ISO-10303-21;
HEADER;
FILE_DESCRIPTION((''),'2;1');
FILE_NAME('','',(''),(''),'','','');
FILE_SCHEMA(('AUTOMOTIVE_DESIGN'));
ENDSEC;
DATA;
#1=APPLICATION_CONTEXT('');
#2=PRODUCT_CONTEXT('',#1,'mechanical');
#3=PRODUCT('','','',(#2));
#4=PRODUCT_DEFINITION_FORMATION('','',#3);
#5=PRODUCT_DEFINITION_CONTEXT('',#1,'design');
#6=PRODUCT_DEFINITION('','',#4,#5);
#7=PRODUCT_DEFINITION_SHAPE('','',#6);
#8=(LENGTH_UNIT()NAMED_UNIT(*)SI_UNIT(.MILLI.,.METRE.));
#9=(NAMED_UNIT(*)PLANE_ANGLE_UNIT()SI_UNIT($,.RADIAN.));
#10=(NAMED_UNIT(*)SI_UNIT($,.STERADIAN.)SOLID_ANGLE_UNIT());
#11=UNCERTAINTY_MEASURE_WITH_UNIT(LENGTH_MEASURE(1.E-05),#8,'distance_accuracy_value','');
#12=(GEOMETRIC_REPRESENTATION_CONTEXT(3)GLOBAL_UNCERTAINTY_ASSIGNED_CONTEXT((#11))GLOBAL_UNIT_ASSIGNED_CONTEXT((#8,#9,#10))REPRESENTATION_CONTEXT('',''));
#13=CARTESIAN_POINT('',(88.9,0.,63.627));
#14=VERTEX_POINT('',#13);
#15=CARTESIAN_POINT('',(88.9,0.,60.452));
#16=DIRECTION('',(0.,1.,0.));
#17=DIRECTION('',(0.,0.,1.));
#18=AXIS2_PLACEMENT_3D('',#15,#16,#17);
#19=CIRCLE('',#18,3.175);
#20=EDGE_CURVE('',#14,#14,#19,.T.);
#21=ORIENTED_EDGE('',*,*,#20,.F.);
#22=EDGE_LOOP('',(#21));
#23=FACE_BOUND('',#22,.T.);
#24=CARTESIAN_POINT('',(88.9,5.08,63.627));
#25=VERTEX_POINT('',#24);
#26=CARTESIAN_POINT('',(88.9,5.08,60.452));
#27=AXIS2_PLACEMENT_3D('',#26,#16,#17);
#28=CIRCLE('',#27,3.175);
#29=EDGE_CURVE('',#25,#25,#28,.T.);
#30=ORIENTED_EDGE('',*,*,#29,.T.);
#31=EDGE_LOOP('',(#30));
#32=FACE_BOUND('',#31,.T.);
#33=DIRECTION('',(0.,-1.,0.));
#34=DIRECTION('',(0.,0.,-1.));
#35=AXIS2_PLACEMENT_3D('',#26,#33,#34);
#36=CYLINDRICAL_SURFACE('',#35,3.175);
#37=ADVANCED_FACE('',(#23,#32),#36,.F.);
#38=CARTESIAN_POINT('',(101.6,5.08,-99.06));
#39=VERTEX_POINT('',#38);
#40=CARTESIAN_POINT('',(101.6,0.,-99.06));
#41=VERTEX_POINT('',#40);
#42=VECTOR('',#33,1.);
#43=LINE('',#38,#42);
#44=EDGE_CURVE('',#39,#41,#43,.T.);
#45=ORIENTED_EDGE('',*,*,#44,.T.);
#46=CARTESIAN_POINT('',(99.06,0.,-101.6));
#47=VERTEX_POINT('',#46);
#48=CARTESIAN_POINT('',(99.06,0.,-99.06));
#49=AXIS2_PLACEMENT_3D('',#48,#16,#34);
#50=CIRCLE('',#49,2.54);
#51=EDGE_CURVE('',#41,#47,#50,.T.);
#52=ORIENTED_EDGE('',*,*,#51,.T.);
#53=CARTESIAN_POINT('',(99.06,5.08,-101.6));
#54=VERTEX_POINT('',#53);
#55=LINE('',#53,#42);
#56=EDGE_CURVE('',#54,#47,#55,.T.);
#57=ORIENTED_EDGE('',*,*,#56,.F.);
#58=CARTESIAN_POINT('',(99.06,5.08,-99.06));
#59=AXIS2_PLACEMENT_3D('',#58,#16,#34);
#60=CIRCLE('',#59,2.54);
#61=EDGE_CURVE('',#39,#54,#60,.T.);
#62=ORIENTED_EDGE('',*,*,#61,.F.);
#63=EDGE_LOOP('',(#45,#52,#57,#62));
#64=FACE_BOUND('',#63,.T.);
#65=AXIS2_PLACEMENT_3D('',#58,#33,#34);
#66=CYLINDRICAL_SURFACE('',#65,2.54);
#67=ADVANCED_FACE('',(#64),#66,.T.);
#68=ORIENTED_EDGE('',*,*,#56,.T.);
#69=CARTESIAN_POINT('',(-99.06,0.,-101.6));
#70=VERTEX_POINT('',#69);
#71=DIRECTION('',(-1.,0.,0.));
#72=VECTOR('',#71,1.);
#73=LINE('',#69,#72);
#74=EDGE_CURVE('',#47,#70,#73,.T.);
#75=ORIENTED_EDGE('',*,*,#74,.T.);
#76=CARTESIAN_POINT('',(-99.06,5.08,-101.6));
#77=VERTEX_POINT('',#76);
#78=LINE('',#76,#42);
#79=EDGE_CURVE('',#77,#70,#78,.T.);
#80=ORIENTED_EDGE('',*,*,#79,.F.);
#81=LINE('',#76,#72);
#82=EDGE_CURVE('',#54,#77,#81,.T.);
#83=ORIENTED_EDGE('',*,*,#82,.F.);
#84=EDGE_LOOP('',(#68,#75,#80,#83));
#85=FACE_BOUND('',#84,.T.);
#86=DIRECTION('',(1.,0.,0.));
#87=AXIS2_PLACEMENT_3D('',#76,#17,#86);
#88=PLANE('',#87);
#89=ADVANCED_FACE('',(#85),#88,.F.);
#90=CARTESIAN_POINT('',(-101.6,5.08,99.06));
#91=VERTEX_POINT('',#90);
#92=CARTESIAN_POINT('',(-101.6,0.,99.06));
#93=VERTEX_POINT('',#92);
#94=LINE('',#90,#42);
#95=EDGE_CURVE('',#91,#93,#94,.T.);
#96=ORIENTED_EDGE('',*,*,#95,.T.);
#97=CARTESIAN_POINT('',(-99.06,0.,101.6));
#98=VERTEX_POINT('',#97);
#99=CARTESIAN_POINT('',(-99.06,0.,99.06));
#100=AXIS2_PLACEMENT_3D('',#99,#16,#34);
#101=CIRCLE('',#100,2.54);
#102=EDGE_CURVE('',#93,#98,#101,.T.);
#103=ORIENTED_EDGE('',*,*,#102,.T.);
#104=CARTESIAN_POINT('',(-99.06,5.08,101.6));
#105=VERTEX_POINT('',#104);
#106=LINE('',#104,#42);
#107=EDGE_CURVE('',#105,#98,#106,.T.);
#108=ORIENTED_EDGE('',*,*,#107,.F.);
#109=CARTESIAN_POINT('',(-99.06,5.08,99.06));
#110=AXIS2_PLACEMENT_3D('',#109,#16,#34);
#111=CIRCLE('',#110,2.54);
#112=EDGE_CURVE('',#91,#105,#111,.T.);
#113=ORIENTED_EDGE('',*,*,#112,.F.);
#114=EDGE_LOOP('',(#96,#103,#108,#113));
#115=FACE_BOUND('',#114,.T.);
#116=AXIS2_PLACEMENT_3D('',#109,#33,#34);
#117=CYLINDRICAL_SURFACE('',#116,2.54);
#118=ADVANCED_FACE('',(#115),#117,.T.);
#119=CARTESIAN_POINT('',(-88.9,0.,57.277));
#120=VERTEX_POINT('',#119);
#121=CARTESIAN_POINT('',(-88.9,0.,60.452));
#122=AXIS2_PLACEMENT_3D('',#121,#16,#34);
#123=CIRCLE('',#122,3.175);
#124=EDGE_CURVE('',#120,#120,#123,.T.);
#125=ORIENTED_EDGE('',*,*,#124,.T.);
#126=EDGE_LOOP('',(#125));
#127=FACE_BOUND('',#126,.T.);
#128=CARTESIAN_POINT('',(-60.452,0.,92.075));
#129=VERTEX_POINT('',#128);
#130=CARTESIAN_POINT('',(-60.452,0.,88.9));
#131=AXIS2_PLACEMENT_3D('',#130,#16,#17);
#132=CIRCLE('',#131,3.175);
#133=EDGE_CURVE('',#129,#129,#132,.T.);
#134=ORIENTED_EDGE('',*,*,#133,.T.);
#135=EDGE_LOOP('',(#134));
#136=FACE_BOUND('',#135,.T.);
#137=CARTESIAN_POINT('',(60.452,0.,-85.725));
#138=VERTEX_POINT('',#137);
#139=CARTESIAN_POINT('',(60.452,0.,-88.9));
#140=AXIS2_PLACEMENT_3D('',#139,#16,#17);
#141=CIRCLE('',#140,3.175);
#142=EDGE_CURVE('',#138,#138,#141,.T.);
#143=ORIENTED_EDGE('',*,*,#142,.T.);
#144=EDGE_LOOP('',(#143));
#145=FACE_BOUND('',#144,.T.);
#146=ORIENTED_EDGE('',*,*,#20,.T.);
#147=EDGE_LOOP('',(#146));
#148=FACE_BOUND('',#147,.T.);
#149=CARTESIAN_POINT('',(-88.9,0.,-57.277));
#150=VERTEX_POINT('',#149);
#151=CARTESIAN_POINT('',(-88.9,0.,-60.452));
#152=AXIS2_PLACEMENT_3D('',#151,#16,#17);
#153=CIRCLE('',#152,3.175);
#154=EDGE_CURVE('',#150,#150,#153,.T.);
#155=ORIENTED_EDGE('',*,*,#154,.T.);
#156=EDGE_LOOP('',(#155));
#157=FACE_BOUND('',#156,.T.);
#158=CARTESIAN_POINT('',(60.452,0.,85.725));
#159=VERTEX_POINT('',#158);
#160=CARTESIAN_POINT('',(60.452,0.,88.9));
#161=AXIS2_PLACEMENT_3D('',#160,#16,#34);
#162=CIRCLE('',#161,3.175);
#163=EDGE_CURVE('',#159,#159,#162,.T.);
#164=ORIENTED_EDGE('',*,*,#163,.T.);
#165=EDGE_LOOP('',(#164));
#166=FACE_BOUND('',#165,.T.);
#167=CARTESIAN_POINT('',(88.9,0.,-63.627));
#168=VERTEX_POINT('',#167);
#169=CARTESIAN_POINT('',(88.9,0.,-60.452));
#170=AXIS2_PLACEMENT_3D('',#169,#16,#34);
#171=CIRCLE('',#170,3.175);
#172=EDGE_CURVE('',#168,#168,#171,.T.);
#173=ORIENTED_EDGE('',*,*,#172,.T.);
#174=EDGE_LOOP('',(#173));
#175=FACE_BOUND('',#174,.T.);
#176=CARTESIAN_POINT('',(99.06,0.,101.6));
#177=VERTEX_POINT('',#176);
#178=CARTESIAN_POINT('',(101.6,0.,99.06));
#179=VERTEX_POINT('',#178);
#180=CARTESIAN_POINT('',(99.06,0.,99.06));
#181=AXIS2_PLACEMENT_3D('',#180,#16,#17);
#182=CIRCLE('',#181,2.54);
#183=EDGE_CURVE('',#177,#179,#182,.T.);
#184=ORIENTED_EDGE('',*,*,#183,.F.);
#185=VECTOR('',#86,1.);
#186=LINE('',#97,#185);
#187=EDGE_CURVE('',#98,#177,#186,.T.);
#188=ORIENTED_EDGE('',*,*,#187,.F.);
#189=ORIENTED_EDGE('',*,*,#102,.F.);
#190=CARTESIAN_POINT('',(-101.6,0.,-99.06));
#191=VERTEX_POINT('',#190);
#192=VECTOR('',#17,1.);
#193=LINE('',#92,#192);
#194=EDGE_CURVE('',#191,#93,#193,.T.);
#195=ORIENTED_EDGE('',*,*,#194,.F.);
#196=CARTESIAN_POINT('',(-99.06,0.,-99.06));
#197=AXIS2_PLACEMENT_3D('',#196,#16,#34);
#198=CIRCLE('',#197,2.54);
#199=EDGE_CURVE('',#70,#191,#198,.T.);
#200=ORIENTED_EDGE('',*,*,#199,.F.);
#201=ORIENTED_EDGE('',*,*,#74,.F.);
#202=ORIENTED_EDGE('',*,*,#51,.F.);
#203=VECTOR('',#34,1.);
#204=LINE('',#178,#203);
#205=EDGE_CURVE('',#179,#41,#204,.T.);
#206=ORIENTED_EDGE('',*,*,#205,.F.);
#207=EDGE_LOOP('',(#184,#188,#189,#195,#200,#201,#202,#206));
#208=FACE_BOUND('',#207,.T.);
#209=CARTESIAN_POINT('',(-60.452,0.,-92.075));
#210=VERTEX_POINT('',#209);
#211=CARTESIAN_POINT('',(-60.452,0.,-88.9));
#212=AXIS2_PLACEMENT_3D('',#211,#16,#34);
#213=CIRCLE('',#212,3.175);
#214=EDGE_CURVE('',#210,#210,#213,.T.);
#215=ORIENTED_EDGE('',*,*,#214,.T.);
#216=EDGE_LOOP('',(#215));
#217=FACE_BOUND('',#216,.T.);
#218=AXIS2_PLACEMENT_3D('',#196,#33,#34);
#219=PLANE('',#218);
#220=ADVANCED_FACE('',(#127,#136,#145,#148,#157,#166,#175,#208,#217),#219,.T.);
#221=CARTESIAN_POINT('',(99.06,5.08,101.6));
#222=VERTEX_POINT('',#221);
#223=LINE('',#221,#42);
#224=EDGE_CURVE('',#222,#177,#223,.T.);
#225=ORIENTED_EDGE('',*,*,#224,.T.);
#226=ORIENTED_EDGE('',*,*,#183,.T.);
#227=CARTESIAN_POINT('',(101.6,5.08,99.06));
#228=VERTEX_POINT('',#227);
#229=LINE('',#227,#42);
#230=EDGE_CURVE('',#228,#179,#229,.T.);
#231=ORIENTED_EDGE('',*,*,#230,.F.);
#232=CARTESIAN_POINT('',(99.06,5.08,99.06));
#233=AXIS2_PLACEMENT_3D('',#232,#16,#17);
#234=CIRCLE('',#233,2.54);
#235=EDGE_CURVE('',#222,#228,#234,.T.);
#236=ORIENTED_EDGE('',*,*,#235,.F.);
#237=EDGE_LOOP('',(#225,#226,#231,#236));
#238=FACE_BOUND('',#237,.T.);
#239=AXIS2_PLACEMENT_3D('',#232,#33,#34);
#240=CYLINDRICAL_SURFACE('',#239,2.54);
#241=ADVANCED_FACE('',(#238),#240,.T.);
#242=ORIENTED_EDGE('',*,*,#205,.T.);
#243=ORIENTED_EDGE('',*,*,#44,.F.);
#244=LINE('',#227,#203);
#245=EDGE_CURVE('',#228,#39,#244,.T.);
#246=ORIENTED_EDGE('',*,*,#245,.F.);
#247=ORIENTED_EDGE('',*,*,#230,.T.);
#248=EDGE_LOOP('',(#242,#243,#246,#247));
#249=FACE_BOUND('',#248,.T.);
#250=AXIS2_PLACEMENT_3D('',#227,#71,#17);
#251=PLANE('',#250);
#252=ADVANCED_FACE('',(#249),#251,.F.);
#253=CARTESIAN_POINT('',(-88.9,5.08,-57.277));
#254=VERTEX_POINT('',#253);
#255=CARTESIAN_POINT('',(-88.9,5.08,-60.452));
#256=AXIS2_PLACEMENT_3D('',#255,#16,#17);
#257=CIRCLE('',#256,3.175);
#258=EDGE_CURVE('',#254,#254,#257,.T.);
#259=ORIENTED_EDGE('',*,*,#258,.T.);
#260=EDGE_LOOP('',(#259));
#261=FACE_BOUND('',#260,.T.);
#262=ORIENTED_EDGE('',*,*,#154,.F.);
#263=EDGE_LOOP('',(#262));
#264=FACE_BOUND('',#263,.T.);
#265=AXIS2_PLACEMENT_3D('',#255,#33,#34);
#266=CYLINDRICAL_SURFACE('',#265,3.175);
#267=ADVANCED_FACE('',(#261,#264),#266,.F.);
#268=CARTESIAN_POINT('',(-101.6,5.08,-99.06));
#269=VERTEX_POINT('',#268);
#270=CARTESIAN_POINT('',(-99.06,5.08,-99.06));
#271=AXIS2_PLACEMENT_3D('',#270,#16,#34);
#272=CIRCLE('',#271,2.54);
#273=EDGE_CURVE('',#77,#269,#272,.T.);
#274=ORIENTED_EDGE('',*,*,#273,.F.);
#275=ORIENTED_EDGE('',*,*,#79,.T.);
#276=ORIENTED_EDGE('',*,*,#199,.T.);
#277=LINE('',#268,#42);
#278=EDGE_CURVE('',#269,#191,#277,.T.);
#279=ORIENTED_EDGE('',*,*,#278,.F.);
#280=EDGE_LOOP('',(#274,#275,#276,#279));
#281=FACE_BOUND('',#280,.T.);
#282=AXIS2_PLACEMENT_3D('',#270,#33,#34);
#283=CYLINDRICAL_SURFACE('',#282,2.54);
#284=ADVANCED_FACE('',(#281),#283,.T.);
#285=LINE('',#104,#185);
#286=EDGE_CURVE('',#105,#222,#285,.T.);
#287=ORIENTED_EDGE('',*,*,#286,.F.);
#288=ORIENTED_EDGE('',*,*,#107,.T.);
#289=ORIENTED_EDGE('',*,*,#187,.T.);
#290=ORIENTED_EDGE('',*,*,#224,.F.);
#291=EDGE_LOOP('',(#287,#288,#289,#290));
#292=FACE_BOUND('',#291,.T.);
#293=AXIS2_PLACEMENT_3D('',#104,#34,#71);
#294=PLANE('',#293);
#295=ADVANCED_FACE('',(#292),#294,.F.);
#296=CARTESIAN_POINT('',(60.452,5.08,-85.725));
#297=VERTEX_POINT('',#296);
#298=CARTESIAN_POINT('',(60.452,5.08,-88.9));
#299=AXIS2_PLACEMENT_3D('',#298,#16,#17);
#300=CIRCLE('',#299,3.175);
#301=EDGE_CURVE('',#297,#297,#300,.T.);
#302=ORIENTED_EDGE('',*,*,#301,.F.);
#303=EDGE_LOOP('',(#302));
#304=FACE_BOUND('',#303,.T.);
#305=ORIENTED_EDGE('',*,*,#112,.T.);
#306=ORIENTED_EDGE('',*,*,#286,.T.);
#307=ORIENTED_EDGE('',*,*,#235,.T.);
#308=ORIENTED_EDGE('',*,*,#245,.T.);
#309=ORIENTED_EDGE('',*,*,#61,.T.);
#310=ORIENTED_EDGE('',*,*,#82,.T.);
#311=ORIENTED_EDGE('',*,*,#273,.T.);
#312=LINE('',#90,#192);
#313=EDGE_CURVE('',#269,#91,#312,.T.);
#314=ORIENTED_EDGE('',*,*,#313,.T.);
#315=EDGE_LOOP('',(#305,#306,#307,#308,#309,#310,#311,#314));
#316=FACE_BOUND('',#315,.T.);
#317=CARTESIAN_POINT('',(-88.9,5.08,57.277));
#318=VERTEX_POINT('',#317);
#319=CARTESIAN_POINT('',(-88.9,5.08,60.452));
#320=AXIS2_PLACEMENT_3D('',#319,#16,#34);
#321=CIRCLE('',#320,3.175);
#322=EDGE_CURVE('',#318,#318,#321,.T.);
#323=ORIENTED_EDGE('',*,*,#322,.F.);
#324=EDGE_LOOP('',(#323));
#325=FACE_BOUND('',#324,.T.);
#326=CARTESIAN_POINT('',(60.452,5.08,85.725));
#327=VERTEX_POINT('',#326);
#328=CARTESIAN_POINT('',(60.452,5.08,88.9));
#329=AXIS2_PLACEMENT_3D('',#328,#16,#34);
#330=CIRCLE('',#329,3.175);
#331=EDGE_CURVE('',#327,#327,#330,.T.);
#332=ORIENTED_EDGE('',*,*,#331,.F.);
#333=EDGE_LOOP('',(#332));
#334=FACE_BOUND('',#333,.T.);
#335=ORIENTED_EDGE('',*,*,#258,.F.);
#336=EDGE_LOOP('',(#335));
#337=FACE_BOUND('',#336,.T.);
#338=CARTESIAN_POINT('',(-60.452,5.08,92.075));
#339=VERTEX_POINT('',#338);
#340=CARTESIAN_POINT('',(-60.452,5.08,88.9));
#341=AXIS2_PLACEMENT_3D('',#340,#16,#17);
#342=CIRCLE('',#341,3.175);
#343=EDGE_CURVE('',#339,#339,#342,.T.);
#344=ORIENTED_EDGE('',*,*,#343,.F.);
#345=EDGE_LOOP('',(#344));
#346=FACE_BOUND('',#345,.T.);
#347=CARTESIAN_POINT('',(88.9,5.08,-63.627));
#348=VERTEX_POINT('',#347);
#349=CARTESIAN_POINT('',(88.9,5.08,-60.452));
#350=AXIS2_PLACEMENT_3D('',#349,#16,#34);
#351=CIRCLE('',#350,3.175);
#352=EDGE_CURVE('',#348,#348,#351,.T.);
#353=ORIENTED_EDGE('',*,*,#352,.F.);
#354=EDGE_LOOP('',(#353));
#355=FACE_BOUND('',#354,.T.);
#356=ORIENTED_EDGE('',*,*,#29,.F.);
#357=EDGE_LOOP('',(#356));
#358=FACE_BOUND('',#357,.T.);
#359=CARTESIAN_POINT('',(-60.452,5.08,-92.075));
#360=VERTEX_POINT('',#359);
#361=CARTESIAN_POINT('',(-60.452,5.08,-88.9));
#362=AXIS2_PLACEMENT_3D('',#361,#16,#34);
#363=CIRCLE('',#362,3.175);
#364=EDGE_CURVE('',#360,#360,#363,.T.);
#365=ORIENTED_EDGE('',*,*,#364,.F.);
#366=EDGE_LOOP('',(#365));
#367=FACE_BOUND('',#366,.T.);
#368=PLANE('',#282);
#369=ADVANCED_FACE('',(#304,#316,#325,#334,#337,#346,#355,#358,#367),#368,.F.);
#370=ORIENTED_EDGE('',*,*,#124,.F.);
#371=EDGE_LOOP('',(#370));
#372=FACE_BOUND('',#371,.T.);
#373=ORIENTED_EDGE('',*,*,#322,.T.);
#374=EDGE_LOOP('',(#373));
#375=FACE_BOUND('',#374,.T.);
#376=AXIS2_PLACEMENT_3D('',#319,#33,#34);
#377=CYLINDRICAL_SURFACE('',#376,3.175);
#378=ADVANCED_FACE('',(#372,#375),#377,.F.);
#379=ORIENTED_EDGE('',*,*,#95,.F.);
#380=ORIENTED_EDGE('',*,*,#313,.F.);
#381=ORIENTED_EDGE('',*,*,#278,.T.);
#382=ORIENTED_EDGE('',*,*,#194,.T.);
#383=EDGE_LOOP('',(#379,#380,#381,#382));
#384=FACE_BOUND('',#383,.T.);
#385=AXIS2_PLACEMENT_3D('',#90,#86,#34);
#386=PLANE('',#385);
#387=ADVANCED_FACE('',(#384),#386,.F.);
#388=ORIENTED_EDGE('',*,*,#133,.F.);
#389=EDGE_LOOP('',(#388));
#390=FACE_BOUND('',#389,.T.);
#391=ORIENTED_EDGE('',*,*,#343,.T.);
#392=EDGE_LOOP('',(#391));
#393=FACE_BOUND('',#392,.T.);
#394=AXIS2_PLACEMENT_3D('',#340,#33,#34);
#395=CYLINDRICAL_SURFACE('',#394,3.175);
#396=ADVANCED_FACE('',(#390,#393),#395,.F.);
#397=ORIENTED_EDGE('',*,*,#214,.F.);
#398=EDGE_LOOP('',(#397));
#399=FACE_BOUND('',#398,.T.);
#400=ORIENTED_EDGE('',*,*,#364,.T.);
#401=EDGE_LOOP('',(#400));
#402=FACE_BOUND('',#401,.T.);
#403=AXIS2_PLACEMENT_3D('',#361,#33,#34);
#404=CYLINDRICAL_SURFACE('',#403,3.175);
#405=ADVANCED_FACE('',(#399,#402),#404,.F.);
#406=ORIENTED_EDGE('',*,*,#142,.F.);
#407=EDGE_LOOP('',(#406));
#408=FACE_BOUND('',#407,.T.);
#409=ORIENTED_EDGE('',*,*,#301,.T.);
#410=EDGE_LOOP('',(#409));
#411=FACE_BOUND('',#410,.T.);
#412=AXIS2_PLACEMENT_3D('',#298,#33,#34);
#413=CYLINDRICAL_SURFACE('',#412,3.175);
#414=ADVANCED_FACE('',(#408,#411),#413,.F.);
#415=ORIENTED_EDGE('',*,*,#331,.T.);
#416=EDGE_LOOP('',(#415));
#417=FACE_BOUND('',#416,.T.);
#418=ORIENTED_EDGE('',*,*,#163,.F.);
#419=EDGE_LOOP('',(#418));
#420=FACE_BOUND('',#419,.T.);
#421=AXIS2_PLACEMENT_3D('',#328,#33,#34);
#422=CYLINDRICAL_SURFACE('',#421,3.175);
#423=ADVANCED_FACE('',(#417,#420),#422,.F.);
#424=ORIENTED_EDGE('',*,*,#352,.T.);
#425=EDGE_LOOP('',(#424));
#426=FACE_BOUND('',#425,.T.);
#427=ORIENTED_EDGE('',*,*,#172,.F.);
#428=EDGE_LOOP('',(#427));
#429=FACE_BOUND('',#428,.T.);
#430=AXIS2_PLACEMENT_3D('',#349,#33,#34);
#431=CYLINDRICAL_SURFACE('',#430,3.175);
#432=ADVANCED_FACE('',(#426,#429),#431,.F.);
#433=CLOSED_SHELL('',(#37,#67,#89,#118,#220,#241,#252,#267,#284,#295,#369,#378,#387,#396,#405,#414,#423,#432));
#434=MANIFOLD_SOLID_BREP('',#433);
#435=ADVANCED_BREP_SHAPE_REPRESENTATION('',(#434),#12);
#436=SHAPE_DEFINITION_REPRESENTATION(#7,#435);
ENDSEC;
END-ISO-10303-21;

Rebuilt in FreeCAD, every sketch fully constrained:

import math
import FreeCAD as App
import Part
import Sketcher
from FreeCAD import Vector
Q = App.Units.Quantity

doc = App.newDocument("Part")
body = doc.addObject("PartDesign::Body", "Body")

sketch1 = body.newObject("Sketcher::SketchObject", "Sketch")
sketch1.AttachmentSupport = (doc.getObject("XZ_Plane"), [""])
sketch1.MapMode = "FlatFace"
sketch1.addGeometry([
    Part.LineSegment(Vector(-99.06, 101.6, 0), Vector(99.06, 101.6, 0)),
    Part.ArcOfCircle(Part.Circle(Vector(99.06, 99.06, 0), Vector(0, 0, 1), 2.54), math.radians(0), math.radians(90)),
    Part.LineSegment(Vector(101.6, 99.06, 0), Vector(101.6, -99.06, 0)),
    Part.ArcOfCircle(Part.Circle(Vector(99.06, -99.06, 0), Vector(0, 0, 1), 2.54), math.radians(-90), math.radians(0)),
    Part.LineSegment(Vector(99.06, -101.6, 0), Vector(-99.06, -101.6, 0)),
    Part.ArcOfCircle(Part.Circle(Vector(-99.06, -99.06, 0), Vector(0, 0, 1), 2.54), math.radians(-180), math.radians(-90)),
    Part.LineSegment(Vector(-101.6, -99.06, 0), Vector(-101.6, 99.06, 0)),
    Part.ArcOfCircle(Part.Circle(Vector(-99.06, 99.06, 0), Vector(0, 0, 1), 2.54), math.radians(90), math.radians(180)),
    Part.Circle(Vector(-60.452, 88.9, 0), Vector(0, 0, 1), 3.175),
    Part.Circle(Vector(-88.9, 60.452, 0), Vector(0, 0, 1), 3.175),
    Part.Circle(Vector(60.452, 88.9, 0), Vector(0, 0, 1), 3.175),
    Part.Circle(Vector(88.9, 60.452, 0), Vector(0, 0, 1), 3.175),
    Part.Circle(Vector(-88.9, -60.452, 0), Vector(0, 0, 1), 3.175),
    Part.Circle(Vector(-60.452, -88.9, 0), Vector(0, 0, 1), 3.175),
    Part.Circle(Vector(88.9, -60.452, 0), Vector(0, 0, 1), 3.175),
    Part.Circle(Vector(60.452, -88.9, 0), Vector(0, 0, 1), 3.175),
], False)
sketch1.addConstraint([
    Sketcher.Constraint("Tangent", 0, 2, 1, 2),
    Sketcher.Constraint("Tangent", 1, 1, 2, 1),
    Sketcher.Constraint("Tangent", 2, 2, 3, 2),
    Sketcher.Constraint("Tangent", 3, 1, 4, 1),
    Sketcher.Constraint("Tangent", 4, 2, 5, 2),
    Sketcher.Constraint("Tangent", 5, 1, 6, 1),
    Sketcher.Constraint("Tangent", 6, 2, 7, 2),
    Sketcher.Constraint("Tangent", 7, 1, 0, 1),
    Sketcher.Constraint("Horizontal", 0),
    Sketcher.Constraint("Vertical", 2),
    Sketcher.Constraint("Horizontal", 4),
    Sketcher.Constraint("Vertical", 6),
    Sketcher.Constraint("Equal", 1, 3),
    Sketcher.Constraint("Equal", 3, 5),
    Sketcher.Constraint("Equal", 5, 7),
    Sketcher.Constraint("Equal", 8, 9),
    Sketcher.Constraint("Equal", 9, 10),
    Sketcher.Constraint("Equal", 10, 11),
    Sketcher.Constraint("Equal", 11, 12),
    Sketcher.Constraint("Equal", 12, 13),
    Sketcher.Constraint("Equal", 13, 14),
    Sketcher.Constraint("Equal", 14, 15),
    Sketcher.Constraint("Symmetric", 1, 3, 5, 3, -1, 1),
    Sketcher.Constraint("Symmetric", 11, 3, 12, 3, -1, 1),
    Sketcher.Constraint("Symmetric", 10, 3, 13, 3, -1, 1),
    Sketcher.Constraint("Symmetric", 9, 3, 14, 3, -1, 1),
    Sketcher.Constraint("Symmetric", 8, 3, 15, 3, -1, 1),
    Sketcher.Constraint("Symmetric", 8, 3, 10, 3, -2),
    Sketcher.Constraint("Symmetric", 9, 3, 11, 3, -2),
    Sketcher.Constraint("Equal", 4, 2),
    Sketcher.Constraint("Radius", 1, Q("0.1 in")),
    Sketcher.Constraint("Diameter", 8, Q("0.25 in")),
    Sketcher.Constraint("DistanceX", 0, 1, 0, 2, Q("7.8 in")),
    Sketcher.Constraint("DistanceX", 9, 3, 11, 3, Q("7 in")),
    Sketcher.Constraint("DistanceY", 13, 3, 8, 3, Q("7 in")),
    Sketcher.Constraint("DistanceX", 8, 3, -1, 1, Q("2.38 in")),
    Sketcher.Constraint("DistanceY", -1, 1, 9, 3, Q("2.38 in")),
])
pad1 = body.newObject("PartDesign::Pad", "Pad")
pad1.Profile = sketch1
pad1.Length = Q("0.2 in")
pad1.Reversed = True

doc.recompute()
